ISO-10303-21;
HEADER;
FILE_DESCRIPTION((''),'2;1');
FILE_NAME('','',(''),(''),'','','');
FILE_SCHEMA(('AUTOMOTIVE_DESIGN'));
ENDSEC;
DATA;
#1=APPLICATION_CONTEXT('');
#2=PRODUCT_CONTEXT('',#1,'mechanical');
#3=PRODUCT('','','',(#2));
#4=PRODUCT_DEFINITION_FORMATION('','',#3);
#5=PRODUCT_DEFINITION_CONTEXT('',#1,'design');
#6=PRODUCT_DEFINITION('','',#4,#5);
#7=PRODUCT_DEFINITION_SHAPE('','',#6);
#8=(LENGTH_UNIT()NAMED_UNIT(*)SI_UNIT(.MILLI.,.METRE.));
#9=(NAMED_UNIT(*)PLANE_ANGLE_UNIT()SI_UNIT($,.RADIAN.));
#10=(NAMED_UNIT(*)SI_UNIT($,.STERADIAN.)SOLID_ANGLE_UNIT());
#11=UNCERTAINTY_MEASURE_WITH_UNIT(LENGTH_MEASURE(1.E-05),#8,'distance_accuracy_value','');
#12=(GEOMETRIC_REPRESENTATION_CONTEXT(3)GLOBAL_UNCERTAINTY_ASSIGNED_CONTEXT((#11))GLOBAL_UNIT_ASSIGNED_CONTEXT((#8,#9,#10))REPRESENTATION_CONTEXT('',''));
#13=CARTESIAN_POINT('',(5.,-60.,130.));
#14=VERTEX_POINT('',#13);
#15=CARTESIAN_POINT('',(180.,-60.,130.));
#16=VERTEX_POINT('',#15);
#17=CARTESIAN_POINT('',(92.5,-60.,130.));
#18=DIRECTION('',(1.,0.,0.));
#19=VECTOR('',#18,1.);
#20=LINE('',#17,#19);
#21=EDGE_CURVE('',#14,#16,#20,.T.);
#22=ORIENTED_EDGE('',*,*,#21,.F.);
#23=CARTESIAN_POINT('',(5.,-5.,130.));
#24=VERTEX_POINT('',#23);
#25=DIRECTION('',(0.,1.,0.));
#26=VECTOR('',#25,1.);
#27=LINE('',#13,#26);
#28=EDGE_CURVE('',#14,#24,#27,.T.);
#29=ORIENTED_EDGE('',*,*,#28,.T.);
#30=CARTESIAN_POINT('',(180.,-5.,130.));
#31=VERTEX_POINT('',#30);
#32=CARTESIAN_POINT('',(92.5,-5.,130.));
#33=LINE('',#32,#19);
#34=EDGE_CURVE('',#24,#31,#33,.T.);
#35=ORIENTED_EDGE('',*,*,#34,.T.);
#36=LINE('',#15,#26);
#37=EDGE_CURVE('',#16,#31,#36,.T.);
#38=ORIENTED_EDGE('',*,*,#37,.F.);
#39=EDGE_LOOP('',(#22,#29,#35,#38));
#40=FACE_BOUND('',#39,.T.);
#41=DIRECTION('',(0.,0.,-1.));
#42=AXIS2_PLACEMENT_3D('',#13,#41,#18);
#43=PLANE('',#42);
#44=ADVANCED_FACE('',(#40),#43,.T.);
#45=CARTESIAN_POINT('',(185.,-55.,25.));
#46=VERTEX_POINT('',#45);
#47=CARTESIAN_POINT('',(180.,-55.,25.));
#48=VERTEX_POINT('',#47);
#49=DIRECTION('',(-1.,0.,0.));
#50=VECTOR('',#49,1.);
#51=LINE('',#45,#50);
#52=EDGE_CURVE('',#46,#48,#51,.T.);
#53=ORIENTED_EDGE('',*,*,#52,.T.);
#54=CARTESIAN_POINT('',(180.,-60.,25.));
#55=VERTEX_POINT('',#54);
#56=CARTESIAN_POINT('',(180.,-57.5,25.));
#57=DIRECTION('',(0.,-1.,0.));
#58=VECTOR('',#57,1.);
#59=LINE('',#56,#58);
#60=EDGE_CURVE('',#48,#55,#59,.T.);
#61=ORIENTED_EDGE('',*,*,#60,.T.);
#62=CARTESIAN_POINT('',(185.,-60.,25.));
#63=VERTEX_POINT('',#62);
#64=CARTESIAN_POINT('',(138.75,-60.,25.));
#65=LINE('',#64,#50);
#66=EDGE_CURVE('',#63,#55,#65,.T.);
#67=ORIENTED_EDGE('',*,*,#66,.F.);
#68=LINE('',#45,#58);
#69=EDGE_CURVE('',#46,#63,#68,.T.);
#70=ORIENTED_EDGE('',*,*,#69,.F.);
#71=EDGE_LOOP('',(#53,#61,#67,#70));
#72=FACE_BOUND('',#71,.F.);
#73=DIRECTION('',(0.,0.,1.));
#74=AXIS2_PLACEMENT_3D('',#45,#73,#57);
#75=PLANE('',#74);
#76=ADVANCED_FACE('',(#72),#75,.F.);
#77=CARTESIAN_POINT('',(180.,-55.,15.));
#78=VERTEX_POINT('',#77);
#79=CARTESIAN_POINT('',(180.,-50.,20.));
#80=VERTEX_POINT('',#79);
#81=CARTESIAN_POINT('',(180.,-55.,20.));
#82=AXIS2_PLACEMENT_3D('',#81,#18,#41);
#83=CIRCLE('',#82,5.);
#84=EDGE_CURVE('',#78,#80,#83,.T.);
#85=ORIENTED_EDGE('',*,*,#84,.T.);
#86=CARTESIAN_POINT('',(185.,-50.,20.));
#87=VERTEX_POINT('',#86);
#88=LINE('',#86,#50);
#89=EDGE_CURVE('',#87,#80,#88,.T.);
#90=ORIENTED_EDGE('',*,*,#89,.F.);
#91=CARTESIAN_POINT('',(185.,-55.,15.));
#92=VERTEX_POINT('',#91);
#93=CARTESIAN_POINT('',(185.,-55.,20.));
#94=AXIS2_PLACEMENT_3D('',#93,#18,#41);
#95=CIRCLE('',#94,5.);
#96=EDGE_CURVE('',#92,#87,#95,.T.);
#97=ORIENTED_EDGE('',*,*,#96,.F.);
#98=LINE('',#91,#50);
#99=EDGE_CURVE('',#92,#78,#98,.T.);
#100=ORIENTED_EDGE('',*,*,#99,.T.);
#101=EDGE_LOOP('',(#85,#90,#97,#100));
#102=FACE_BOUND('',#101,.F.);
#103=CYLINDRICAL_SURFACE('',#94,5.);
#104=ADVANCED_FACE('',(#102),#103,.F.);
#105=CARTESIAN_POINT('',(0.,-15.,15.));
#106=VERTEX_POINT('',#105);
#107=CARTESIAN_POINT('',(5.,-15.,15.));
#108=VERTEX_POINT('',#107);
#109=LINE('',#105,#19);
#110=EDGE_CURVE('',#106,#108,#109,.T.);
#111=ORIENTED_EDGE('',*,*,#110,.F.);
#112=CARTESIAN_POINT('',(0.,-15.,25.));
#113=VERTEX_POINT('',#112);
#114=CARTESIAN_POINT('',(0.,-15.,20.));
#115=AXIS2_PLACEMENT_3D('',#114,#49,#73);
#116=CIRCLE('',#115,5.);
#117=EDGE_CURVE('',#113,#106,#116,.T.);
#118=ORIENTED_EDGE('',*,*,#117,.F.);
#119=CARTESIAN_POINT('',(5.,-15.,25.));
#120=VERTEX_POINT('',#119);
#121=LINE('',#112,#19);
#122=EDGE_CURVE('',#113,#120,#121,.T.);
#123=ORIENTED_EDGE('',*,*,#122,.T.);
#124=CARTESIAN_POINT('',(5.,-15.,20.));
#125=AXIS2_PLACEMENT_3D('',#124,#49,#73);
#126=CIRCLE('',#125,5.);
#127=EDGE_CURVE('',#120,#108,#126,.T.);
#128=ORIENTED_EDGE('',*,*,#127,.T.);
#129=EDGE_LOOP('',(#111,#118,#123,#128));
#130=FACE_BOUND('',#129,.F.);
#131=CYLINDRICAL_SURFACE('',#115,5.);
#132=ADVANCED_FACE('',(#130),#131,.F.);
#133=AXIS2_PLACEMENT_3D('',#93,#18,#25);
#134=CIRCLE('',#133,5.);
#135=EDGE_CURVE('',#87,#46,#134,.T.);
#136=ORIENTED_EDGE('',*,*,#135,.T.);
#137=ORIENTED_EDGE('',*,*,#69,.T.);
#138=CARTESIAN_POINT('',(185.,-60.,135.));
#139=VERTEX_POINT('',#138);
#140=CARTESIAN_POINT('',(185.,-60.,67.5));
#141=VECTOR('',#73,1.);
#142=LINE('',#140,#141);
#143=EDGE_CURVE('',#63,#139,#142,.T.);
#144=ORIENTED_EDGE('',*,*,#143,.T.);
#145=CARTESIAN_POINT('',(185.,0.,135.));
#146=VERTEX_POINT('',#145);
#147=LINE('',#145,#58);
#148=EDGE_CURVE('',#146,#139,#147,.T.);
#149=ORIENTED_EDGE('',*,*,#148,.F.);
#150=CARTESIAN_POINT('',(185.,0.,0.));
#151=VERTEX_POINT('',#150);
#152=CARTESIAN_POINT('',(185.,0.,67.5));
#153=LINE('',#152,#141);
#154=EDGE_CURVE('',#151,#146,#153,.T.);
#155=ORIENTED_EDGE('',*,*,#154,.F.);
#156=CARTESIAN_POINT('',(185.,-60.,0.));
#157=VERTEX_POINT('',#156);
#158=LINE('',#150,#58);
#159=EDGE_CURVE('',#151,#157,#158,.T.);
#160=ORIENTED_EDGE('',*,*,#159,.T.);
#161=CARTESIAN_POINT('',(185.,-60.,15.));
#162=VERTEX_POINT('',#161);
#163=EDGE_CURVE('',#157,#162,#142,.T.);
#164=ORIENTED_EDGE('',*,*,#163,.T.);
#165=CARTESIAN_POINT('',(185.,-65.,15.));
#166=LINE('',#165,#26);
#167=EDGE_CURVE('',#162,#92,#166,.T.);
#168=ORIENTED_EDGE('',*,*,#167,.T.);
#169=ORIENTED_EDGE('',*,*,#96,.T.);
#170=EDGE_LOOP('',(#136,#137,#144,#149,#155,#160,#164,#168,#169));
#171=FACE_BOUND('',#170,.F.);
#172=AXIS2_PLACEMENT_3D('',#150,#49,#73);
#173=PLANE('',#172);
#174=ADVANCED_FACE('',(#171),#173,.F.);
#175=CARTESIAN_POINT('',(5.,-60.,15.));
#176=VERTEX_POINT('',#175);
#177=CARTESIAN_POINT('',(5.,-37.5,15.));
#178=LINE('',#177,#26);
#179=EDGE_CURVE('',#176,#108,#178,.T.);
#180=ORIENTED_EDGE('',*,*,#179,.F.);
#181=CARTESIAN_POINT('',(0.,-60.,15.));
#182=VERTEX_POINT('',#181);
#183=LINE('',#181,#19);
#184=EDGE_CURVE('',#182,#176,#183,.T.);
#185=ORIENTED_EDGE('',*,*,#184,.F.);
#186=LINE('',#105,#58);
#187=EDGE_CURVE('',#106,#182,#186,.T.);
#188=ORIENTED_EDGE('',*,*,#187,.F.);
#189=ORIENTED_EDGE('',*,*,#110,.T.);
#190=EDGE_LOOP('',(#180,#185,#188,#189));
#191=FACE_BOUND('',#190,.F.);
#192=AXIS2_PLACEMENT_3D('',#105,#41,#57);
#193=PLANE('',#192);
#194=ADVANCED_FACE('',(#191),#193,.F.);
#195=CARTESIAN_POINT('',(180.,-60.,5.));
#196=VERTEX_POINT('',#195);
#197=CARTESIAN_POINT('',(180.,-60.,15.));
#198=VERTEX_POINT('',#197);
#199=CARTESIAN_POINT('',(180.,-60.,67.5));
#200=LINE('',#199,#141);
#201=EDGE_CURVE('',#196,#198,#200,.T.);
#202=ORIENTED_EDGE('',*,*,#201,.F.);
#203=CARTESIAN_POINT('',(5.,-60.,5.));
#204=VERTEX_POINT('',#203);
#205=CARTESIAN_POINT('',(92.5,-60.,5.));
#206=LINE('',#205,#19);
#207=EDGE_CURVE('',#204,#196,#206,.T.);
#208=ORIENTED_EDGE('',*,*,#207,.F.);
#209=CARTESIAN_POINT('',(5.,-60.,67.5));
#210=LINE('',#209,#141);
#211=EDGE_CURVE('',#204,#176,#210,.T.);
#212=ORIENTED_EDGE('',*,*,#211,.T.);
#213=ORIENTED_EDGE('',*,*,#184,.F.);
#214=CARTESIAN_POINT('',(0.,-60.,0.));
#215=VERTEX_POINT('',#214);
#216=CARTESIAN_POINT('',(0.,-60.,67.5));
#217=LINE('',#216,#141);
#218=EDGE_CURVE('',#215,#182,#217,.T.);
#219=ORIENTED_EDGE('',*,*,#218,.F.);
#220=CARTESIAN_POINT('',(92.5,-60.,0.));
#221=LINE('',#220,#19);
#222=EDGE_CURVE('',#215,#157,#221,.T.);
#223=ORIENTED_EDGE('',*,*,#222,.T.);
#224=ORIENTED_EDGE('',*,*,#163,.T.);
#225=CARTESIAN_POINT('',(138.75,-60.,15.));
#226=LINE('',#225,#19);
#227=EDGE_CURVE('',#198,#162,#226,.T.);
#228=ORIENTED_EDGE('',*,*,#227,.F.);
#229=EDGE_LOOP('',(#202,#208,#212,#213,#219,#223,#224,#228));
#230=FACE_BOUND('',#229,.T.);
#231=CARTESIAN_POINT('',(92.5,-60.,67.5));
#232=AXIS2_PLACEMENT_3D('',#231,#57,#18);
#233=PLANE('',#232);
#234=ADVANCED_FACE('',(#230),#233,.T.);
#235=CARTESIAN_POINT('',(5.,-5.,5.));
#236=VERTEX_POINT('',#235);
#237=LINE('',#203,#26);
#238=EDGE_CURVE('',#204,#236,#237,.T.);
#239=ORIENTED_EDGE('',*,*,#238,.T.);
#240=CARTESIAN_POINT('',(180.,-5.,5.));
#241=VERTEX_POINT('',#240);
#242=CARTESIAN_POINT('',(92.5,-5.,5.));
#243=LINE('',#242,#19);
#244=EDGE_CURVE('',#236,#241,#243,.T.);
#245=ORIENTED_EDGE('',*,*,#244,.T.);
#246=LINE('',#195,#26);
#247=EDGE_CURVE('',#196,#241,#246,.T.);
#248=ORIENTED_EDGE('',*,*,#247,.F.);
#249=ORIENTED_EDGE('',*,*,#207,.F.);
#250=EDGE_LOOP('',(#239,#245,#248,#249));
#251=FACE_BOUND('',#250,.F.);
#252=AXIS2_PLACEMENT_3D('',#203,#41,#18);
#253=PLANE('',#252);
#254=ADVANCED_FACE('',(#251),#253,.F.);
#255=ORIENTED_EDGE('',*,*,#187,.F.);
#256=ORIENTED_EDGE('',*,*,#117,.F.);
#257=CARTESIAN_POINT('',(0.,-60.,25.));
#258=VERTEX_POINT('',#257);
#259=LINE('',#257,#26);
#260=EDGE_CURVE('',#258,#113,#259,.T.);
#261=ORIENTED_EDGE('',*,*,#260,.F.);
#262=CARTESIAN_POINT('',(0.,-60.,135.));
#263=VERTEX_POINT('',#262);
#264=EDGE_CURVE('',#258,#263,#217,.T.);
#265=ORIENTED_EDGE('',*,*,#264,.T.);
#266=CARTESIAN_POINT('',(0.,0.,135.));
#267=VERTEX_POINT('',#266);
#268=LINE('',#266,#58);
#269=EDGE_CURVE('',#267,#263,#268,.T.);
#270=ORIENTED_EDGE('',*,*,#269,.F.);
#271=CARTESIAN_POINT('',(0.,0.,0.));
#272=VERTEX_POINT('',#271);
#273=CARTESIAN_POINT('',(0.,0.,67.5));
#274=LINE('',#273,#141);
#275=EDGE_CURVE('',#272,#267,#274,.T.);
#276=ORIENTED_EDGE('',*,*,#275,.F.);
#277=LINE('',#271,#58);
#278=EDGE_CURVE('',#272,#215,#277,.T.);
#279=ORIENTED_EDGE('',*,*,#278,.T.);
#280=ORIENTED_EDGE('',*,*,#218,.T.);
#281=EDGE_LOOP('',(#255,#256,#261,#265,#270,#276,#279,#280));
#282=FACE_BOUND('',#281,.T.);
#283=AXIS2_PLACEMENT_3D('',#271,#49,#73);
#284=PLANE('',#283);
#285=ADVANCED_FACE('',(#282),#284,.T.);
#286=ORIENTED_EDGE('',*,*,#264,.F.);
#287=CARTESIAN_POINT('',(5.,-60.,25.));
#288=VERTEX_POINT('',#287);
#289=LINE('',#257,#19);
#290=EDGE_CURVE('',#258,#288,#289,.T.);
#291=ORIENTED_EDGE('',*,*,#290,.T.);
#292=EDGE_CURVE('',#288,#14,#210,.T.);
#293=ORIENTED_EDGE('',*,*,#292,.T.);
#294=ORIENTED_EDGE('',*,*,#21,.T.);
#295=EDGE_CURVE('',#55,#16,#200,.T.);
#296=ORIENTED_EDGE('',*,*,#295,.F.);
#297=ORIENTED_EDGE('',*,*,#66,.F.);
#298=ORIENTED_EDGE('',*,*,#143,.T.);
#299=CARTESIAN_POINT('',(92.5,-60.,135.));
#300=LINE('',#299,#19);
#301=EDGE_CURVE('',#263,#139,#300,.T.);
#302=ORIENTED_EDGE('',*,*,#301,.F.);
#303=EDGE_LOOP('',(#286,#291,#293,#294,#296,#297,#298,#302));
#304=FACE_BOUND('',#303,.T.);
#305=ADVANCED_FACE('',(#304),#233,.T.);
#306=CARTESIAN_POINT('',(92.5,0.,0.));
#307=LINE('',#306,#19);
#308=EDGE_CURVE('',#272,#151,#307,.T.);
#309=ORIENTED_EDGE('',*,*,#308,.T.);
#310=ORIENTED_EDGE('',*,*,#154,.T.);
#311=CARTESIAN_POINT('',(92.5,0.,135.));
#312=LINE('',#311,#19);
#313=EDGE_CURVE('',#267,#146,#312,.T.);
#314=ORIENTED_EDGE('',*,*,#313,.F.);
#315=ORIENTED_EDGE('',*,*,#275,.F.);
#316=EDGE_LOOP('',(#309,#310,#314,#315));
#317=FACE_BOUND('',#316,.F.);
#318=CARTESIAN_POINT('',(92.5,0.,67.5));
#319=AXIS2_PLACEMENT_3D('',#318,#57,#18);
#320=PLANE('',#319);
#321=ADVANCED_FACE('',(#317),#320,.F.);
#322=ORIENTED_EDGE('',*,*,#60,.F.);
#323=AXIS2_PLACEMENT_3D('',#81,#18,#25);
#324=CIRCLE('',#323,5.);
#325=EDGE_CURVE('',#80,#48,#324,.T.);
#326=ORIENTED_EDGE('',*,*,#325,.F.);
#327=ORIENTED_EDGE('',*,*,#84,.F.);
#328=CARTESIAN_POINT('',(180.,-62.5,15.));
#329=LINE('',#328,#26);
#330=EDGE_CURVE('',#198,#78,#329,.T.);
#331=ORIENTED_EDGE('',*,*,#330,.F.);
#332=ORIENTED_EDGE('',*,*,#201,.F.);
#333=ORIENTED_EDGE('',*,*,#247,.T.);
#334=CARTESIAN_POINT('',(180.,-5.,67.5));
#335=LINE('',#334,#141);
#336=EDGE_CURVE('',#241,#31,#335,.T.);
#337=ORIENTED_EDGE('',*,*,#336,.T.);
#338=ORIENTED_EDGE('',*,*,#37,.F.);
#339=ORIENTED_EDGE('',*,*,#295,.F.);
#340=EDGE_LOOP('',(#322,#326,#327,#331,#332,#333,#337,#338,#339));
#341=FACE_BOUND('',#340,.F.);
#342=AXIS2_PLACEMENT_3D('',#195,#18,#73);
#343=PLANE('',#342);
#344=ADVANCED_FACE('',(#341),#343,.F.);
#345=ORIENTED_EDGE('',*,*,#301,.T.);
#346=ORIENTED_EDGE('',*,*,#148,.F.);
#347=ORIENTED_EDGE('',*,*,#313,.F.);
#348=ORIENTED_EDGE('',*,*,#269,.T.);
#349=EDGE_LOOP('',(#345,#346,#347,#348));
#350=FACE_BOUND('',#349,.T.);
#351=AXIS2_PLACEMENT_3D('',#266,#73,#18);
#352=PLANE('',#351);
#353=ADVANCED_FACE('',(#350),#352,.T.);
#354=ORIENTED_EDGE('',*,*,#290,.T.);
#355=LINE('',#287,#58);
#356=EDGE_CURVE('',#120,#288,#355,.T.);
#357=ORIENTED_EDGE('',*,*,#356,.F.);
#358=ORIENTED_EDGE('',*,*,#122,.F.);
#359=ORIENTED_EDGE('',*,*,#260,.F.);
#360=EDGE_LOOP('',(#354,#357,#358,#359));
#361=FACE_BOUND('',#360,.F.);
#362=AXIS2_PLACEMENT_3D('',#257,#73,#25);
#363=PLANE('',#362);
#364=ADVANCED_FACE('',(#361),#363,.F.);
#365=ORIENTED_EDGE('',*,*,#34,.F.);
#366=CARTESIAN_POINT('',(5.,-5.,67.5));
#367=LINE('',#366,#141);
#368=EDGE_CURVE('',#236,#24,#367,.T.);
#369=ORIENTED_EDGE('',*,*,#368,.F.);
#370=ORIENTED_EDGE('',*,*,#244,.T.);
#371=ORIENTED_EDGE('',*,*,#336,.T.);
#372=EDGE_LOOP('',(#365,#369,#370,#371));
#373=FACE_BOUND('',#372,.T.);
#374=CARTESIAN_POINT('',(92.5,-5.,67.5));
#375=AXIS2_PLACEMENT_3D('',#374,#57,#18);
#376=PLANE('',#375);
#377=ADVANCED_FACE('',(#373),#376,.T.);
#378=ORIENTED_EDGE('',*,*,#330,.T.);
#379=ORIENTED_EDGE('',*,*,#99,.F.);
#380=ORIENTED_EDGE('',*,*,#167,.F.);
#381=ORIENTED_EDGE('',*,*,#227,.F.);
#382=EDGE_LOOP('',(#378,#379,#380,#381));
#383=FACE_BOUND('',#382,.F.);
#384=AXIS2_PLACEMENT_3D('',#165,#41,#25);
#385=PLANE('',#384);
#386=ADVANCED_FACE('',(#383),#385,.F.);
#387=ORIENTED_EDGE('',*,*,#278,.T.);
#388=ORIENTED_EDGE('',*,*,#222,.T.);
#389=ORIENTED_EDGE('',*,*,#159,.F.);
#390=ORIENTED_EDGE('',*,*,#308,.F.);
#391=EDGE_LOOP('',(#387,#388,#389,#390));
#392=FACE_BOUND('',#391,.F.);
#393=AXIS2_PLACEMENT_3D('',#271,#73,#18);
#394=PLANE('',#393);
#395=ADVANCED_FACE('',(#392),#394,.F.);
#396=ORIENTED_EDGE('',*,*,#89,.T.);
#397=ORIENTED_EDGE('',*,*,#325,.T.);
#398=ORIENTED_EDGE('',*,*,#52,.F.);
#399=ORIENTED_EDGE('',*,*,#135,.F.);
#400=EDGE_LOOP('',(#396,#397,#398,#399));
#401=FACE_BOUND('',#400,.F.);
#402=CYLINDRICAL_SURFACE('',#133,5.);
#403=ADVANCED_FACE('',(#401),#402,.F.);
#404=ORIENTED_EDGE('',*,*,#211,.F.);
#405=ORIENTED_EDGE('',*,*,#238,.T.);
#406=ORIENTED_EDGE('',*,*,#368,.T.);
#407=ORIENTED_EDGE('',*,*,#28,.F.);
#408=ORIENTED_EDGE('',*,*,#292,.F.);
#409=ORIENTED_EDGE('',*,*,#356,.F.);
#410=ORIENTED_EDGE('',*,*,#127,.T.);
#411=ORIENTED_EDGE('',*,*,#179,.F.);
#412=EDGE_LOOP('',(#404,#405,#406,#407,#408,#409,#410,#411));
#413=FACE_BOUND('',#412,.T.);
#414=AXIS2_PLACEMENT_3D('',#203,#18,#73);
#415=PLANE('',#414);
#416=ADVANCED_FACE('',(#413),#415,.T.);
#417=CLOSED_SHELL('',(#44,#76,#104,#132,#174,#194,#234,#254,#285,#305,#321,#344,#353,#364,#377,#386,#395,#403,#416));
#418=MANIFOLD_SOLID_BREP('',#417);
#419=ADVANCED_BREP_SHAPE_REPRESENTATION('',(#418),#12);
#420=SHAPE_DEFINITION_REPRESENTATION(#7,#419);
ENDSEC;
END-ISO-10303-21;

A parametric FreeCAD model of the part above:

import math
import FreeCAD as App
import Part
import Sketcher
Q = App.Units.Quantity

doc = App.newDocument("Part")
body = doc.addObject("PartDesign::Body", "Body")

# Sketch on XZ plane
sketch1 = body.newObject("Sketcher::SketchObject", "Sketch")
sketch1.AttachmentSupport = (doc.getObject("XZ_Plane"), [""])
sketch1.MapMode = "FlatFace"
sketch1.addGeometry(Part.LineSegment(App.Vector(0, 135, 0), App.Vector(0, 0, 0)), False)
sketch1.addGeometry(Part.LineSegment(App.Vector(0, 0, 0), App.Vector(185, 0, 0)), False)
sketch1.addGeometry(Part.LineSegment(App.Vector(185, 0, 0), App.Vector(185, 135, 0)), False)
sketch1.addGeometry(Part.LineSegment(App.Vector(185, 135, 0), App.Vector(0, 135, 0)), False)
sketch1.addConstraint(Sketcher.Constraint("Coincident", 0, 2, 1, 1))
sketch1.addConstraint(Sketcher.Constraint("Coincident", 1, 2, 2, 1))
sketch1.addConstraint(Sketcher.Constraint("Coincident", 2, 2, 3, 1))
sketch1.addConstraint(Sketcher.Constraint("Coincident", 3, 2, 0, 1))
sketch1.addConstraint(Sketcher.Constraint("Vertical", 0))
sketch1.addConstraint(Sketcher.Constraint("Horizontal", 1))
sketch1.addConstraint(Sketcher.Constraint("Vertical", 2))
sketch1.addConstraint(Sketcher.Constraint("Horizontal", 3))
sketch1.addConstraint(Sketcher.Constraint("Coincident", 0, 2, -1, 1))
sketch1.addConstraint(Sketcher.Constraint("DistanceX", 1, 1, 1, 2, Q("185 mm")))
sketch1.addConstraint(Sketcher.Constraint("DistanceY", 0, 2, 0, 1, Q("135 mm")))
pad1 = body.newObject("PartDesign::Pad", "Pad")
pad1.Profile = sketch1
pad1.Length = 60

# Sketch on XZ plane
sketch2 = body.newObject("Sketcher::SketchObject", "Sketch001")
sketch2.AttachmentSupport = (doc.getObject("XZ_Plane"), [""])
sketch2.MapMode = "FlatFace"
sketch2.AttachmentOffset = App.Placement(App.Vector(0, 0, 60), App.Rotation())
sketch2.addGeometry(Part.LineSegment(App.Vector(5, 130, 0), App.Vector(5, 5, 0)), False)
sketch2.addGeometry(Part.LineSegment(App.Vector(5, 5, 0), App.Vector(180, 5, 0)), False)
sketch2.addGeometry(Part.LineSegment(App.Vector(180, 5, 0), App.Vector(180, 130, 0)), False)
sketch2.addGeometry(Part.LineSegment(App.Vector(180, 130, 0), App.Vector(5, 130, 0)), False)
sketch2.addConstraint(Sketcher.Constraint("Coincident", 0, 2, 1, 1))
sketch2.addConstraint(Sketcher.Constraint("Coincident", 1, 2, 2, 1))
sketch2.addConstraint(Sketcher.Constraint("Coincident", 2, 2, 3, 1))
sketch2.addConstraint(Sketcher.Constraint("Coincident", 3, 2, 0, 1))
sketch2.addConstraint(Sketcher.Constraint("Vertical", 0))
sketch2.addConstraint(Sketcher.Constraint("Horizontal", 1))
sketch2.addConstraint(Sketcher.Constraint("Vertical", 2))
sketch2.addConstraint(Sketcher.Constraint("Horizontal", 3))
sketch2.addConstraint(Sketcher.Constraint("DistanceX", 1, 1, 1, 2, Q("175 mm")))
sketch2.addConstraint(Sketcher.Constraint("DistanceY", 0, 2, 0, 1, Q("125 mm")))
sketch2.addConstraint(Sketcher.Constraint("DistanceX", -1, 1, 0, 2, Q("5 mm")))
sketch2.addConstraint(Sketcher.Constraint("DistanceY", -1, 1, 0, 2, Q("5 mm")))
pocket1 = body.newObject("PartDesign::Pocket", "Pocket")
pocket1.Profile = sketch2
pocket1.Length = 55

# Sketch on YZ plane
sketch3 = body.newObject("Sketcher::SketchObject", "Sketch002")
sketch3.AttachmentSupport = (doc.getObject("YZ_Plane"), [""])
sketch3.MapMode = "FlatFace"
sketch3.AttachmentOffset = App.Placement(App.Vector(0, 0, 185), App.Rotation())
sketch3.addGeometry(Part.ArcOfCircle(Part.Circle(App.Vector(-55, 20, 0), App.Vector(0, 0, 1), 5), math.radians(-90), math.radians(0)), False)
sketch3.addGeometry(Part.ArcOfCircle(Part.Circle(App.Vector(-55, 20, 0), App.Vector(0, 0, 1), 5), math.radians(0), math.radians(90)), False)
sketch3.addGeometry(Part.LineSegment(App.Vector(-55, 25, 0), App.Vector(-65, 25, 0)), False)
sketch3.addGeometry(Part.LineSegment(App.Vector(-65, 25, 0), App.Vector(-65, 15, 0)), False)
sketch3.addGeometry(Part.LineSegment(App.Vector(-65, 15, 0), App.Vector(-55, 15, 0)), False)
sketch3.addConstraint(Sketcher.Constraint("Tangent", 0, 2, 1, 1))
sketch3.addConstraint(Sketcher.Constraint("Tangent", 1, 2, 2, 1))
sketch3.addConstraint(Sketcher.Constraint("Coincident", 2, 2, 3, 1))
sketch3.addConstraint(Sketcher.Constraint("Coincident", 3, 2, 4, 1))
sketch3.addConstraint(Sketcher.Constraint("Tangent", 4, 2, 0, 1))
sketch3.addConstraint(Sketcher.Constraint("Horizontal", 2))
sketch3.addConstraint(Sketcher.Constraint("Vertical", 3))
sketch3.addConstraint(Sketcher.Constraint("Horizontal", 4))
sketch3.addConstraint(Sketcher.Constraint("Equal", 0, 1))
sketch3.addConstraint(Sketcher.Constraint("Horizontal", 1, 3, 0, 2))
sketch3.addConstraint(Sketcher.Constraint("Equal", 4, 3))
sketch3.addConstraint(Sketcher.Constraint("Radius", 0, Q("5 mm")))
sketch3.addConstraint(Sketcher.Constraint("DistanceX", 0, 3, -1, 1, Q("55 mm")))
sketch3.addConstraint(Sketcher.Constraint("DistanceY", -1, 1, 0, 3, Q("20 mm")))
pocket2 = body.newObject("PartDesign::Pocket", "Pocket001")
pocket2.Profile = sketch3
pocket2.Length = 25

# Sketch on YZ plane
sketch4 = body.newObject("Sketcher::SketchObject", "Sketch003")
sketch4.AttachmentSupport = (doc.getObject("YZ_Plane"), [""])
sketch4.MapMode = "FlatFace"
sketch4.addGeometry(Part.LineSegment(App.Vector(-60, 15, 0), App.Vector(-60, 25, 0)), False)
sketch4.addGeometry(Part.LineSegment(App.Vector(-60, 25, 0), App.Vector(-15, 25, 0)), False)
sketch4.addGeometry(Part.ArcOfCircle(Part.Circle(App.Vector(-15, 20, 0), App.Vector(0, 0, 1), 5), math.radians(-90), math.radians(90)), False)
sketch4.addGeometry(Part.LineSegment(App.Vector(-15, 15, 0), App.Vector(-60, 15, 0)), False)
sketch4.addConstraint(Sketcher.Constraint("Coincident", 0, 2, 1, 1))
sketch4.addConstraint(Sketcher.Constraint("Tangent", 1, 2, 2, 2))
sketch4.addConstraint(Sketcher.Constraint("Tangent", 2, 1, 3, 1))
sketch4.addConstraint(Sketcher.Constraint("Coincident", 3, 2, 0, 1))
sketch4.addConstraint(Sketcher.Constraint("Vertical", 0))
sketch4.addConstraint(Sketcher.Constraint("Horizontal", 1))
sketch4.addConstraint(Sketcher.Constraint("Horizontal", 3))
sketch4.addConstraint(Sketcher.Constraint("Radius", 2, Q("5 mm")))
sketch4.addConstraint(Sketcher.Constraint("DistanceX", 1, 1, 1, 2, Q("45 mm")))
sketch4.addConstraint(Sketcher.Constraint("DistanceX", 2, 3, -1, 1, Q("15 mm")))
sketch4.addConstraint(Sketcher.Constraint("DistanceY", -1, 1, 2, 3, Q("20 mm")))
pocket3 = body.newObject("PartDesign::Pocket", "Pocket002")
pocket3.Profile = sketch4
pocket3.Length = 25
pocket3.Reversed = True

doc.recompute()
